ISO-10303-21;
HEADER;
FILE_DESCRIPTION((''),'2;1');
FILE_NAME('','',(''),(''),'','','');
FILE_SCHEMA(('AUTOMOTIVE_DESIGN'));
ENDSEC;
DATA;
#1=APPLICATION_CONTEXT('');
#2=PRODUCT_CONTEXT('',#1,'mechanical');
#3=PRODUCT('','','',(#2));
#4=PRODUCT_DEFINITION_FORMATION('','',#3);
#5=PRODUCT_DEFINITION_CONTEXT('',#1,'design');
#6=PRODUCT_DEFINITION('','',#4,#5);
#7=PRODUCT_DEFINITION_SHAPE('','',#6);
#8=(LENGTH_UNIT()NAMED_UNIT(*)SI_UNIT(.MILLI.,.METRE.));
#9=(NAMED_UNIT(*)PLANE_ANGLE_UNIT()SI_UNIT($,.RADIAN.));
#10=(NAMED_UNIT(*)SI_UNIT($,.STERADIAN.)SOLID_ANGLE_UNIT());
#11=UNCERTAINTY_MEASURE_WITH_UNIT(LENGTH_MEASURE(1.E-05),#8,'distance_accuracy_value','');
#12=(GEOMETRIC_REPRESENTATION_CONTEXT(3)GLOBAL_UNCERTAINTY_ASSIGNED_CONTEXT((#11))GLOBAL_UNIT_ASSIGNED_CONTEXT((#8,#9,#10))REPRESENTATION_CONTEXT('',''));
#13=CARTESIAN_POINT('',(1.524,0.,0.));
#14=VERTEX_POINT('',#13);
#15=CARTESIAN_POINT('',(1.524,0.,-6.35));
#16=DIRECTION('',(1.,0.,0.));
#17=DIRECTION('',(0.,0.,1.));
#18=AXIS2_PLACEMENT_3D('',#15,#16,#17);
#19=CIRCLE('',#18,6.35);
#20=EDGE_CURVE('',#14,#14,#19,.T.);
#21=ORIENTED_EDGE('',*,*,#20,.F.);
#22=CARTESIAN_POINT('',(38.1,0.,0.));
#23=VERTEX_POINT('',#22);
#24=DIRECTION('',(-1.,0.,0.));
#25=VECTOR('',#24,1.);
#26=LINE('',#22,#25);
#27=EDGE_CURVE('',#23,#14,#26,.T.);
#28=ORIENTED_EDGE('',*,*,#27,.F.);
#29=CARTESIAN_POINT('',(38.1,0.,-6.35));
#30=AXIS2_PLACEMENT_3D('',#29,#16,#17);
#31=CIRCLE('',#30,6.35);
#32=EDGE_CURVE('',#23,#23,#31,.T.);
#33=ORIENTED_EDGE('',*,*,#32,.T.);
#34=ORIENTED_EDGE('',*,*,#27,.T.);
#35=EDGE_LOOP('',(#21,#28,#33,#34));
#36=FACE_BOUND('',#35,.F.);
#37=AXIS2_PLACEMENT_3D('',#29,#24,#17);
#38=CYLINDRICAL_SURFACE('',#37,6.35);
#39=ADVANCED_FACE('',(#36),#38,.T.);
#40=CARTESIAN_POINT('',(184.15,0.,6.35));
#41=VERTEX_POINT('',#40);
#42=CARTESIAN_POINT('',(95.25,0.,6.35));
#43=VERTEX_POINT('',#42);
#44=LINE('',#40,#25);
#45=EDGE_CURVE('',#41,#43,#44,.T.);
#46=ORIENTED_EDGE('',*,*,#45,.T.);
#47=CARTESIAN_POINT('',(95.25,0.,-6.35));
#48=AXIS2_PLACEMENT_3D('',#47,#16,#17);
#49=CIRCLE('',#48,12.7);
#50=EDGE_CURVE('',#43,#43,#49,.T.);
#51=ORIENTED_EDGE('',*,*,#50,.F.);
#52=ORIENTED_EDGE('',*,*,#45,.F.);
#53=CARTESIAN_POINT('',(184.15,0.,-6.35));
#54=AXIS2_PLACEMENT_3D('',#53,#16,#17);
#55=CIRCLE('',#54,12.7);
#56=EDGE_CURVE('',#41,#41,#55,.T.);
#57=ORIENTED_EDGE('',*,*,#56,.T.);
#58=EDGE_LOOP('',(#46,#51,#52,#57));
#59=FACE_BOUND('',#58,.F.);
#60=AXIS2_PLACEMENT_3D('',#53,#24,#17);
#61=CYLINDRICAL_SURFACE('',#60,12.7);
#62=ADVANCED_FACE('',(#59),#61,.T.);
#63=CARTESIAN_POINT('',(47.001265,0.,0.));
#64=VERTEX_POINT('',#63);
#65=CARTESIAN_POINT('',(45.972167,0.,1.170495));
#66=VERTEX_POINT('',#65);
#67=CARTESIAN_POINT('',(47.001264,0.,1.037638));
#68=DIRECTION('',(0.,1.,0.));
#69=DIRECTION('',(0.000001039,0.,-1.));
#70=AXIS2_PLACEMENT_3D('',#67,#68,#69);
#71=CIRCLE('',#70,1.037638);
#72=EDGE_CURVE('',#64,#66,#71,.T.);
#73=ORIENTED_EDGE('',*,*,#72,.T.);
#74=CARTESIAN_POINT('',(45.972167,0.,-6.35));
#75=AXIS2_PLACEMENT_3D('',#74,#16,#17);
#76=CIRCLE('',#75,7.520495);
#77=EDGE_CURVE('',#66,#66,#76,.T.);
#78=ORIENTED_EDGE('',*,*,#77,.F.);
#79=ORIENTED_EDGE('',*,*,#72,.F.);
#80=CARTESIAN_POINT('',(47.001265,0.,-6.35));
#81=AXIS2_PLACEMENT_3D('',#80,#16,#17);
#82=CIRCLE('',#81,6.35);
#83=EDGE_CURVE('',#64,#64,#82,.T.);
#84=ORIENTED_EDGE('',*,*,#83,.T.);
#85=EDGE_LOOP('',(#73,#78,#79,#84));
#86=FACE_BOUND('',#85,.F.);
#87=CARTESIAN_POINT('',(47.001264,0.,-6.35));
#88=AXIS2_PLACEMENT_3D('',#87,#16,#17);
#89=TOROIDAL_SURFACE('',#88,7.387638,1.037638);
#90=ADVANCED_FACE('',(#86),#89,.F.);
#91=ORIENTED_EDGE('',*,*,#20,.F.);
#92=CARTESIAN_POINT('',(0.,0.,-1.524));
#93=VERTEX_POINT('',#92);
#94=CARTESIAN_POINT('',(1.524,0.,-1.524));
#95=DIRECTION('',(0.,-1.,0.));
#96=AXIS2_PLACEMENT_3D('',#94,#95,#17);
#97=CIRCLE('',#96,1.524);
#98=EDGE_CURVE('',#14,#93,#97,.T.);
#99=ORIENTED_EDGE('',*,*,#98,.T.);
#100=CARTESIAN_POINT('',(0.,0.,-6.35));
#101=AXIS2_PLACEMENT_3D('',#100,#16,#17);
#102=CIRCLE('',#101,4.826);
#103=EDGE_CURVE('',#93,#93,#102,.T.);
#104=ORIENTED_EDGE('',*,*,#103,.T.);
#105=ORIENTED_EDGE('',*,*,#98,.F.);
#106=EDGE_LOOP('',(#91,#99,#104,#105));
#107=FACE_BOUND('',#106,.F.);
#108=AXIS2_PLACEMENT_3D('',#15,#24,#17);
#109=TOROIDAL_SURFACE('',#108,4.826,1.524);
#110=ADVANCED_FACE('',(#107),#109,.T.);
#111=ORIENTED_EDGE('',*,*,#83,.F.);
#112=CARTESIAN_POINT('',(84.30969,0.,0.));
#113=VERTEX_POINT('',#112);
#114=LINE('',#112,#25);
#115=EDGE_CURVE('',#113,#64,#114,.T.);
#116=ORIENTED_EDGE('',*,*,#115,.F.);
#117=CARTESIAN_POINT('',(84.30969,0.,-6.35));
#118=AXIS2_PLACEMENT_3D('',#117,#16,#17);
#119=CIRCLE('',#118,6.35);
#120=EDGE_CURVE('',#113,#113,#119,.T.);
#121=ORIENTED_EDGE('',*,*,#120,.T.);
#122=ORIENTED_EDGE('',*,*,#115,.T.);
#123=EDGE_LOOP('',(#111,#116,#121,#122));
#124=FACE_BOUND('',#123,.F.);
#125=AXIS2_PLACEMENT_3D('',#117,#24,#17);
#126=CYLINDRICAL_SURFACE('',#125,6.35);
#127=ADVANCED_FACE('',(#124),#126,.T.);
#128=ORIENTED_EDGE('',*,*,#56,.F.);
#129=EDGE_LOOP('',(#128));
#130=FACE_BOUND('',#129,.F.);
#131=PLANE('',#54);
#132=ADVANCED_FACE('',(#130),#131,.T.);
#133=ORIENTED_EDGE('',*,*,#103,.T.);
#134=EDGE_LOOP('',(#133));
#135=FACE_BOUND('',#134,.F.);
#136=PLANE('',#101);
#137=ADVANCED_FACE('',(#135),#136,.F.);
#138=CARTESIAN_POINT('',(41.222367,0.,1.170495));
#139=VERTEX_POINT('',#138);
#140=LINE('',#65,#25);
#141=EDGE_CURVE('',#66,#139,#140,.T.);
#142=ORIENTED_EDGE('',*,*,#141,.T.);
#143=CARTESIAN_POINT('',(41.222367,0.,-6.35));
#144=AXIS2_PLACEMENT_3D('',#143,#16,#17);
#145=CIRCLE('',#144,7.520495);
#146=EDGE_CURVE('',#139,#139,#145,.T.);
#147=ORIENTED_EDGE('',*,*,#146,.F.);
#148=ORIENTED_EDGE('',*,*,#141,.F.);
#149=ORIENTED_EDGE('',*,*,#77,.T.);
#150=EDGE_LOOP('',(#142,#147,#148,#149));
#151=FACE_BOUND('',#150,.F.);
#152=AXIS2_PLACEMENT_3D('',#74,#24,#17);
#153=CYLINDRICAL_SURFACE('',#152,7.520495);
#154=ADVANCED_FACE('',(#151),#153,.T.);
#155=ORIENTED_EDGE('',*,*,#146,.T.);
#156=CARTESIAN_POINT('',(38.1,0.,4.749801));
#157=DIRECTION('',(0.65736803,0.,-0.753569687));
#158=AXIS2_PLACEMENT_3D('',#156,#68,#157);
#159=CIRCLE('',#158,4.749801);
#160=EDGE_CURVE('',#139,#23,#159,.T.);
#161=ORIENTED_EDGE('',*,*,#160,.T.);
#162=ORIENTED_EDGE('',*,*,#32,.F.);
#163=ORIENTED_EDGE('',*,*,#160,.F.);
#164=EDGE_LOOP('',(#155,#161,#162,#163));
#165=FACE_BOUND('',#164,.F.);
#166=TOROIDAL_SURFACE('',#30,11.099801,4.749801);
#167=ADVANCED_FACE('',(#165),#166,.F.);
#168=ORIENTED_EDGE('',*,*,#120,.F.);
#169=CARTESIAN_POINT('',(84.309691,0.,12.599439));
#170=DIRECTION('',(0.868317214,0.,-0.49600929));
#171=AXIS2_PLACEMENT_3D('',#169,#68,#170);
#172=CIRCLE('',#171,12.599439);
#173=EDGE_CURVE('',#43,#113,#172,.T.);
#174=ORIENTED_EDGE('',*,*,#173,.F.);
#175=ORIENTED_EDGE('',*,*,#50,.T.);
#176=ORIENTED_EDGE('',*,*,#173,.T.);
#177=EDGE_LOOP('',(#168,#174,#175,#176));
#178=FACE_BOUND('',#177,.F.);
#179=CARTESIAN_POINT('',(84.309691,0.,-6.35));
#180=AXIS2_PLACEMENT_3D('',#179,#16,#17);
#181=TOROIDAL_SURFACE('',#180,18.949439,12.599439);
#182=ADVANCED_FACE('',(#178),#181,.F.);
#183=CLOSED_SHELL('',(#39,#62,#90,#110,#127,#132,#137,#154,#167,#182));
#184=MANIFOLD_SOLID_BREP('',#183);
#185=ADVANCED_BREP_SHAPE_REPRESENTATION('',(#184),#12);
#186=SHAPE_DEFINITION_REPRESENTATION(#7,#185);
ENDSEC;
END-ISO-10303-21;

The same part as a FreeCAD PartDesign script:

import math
import FreeCAD as App
import Part
import Sketcher
from FreeCAD import Vector
Q = App.Units.Quantity


def edges_at(feature, points):
    """Names of the edges that pass closest to the given points."""
    edges = feature.Shape.Edges
    near = lambda p: min(range(len(edges)), key=lambda i: edges[i].distToShape(Part.Vertex(*p))[0])
    return sorted({f"Edge{near(p) + 1}" for p in points})

doc = App.newDocument("Part")
params = doc.addObject("Spreadsheet::Sheet", "Params")
for row, (alias, value) in enumerate([
    ("sketch1_width", "1.5 in"),
    ("sketch1_width2", "3.5 in"),
    ("sketch1_height", "0.5 in"),
    ("sketch1_radius", "0.187 in"),
    ("sketch1_width3", "7.25 in"),
    ("revolution_angle", "360 deg"),
    ("fillet_radius", "0.06 in"),
], start=1):
    params.set(f"A{row}", alias)
    params.set(f"B{row}", "=" + value)
    params.setAlias(f"B{row}", alias)

body = doc.addObject("PartDesign::Body", "Body")

sketch1 = body.newObject("Sketcher::SketchObject", "Sketch")
sketch1.AttachmentSupport = (doc.getObject("XZ_Plane"), [""])
sketch1.MapMode = "FlatFace"
sketch1.addGeometry([
    Part.LineSegment(Vector(38.1, 0, 0), Vector(0, 0, 0)),
    Part.LineSegment(Vector(0, 0, 0), Vector(0, -6.3, 0)),
    Part.LineSegment(Vector(0, -6.3, 0), Vector(184.2, -6.3, 0)),
    Part.LineSegment(Vector(184.2, -6.3, 0), Vector(184.2, 6.3, 0)),
    Part.LineSegment(Vector(184.2, 6.3, 0), Vector(95.2, 6.3, 0)),
    Part.ArcOfCircle(Part.Circle(Vector(84.3, 12.6, 0), Vector(0, 0, 1), 12.6), math.radians(-90), math.radians(-30)),
    Part.LineSegment(Vector(84.3, 0, 0), Vector(47, 0, 0)),
    Part.ArcOfCircle(Part.Circle(Vector(47, 1, 0), Vector(0, 0, 1), 1), math.radians(173), math.radians(270)),
    Part.LineSegment(Vector(46, 1.2, 0), Vector(41.2, 1.2, 0)),
    Part.ArcOfCircle(Part.Circle(Vector(38.1, 4.7, 0), Vector(0, 0, 1), 4.7), math.radians(-90), math.radians(-49)),
], False)
sketch1.addGeometry(Part.LineSegment(Vector(0, -6.3, 0), Vector(184.2, -6.3, 0)), True)
sketch1.addConstraint([
    Sketcher.Constraint("Coincident", 0, 2, 1, 1),
    Sketcher.Constraint("Coincident", 1, 2, 2, 1),
    Sketcher.Constraint("Coincident", 2, 2, 3, 1),
    Sketcher.Constraint("Coincident", 3, 2, 4, 1),
    Sketcher.Constraint("Coincident", 4, 2, 5, 2),
    Sketcher.Constraint("Tangent", 5, 1, 6, 1),
    Sketcher.Constraint("Tangent", 6, 2, 7, 2),
    Sketcher.Constraint("Coincident", 7, 1, 8, 1),
    Sketcher.Constraint("Coincident", 8, 2, 9, 2),
    Sketcher.Constraint("Tangent", 9, 1, 0, 1),
    Sketcher.Constraint("Horizontal", 0),
    Sketcher.Constraint("Vertical", 1),
    Sketcher.Constraint("Horizontal", 2),
    Sketcher.Constraint("Vertical", 3),
    Sketcher.Constraint("Horizontal", 4),
    Sketcher.Constraint("Horizontal", 6),
    Sketcher.Constraint("Horizontal", 8),
    Sketcher.Constraint("Horizontal", 10),
    Sketcher.Constraint("Coincident", 0, 2, -1, 1),
    Sketcher.Constraint("Coincident", 10, 1, 1, 2),
    Sketcher.Constraint("Symmetric", 3, 2, 10, 2, -1),
    Sketcher.Constraint("PointOnObject", 5, 1, -1),
    Sketcher.Constraint("DistanceX", 0, 2, 0, 1, Q("1.5 in")),
    Sketcher.Constraint("DistanceX", 4, 2, 4, 1, Q("3.5 in")),
    Sketcher.Constraint("DistanceY", 3, 1, 3, 2, Q("0.5 in")),
    Sketcher.Constraint("Radius", 9, Q("0.187 in")),
    Sketcher.Constraint("DistanceX", 2, 1, 2, 2, Q("7.25 in")),
    Sketcher.Constraint("DistanceX", 8, 2, 8, 1, Q("0.187 in")),
    Sketcher.Constraint("Radius", 5, 12.599439),
    Sketcher.Constraint("Radius", 7, 1.037638),
    Sketcher.Constraint("DistanceX", 6, 2, 6, 1, 37.308425),
])
sketch1.setExpression("Constraints[22]", "Params.sketch1_width")
sketch1.setExpression("Constraints[23]", "Params.sketch1_width2")
sketch1.setExpression("Constraints[24]", "Params.sketch1_height")
sketch1.setExpression("Constraints[25]", "Params.sketch1_radius")
sketch1.setExpression("Constraints[26]", "Params.sketch1_width3")
revolution = body.newObject("PartDesign::Revolution", "Revolution")
revolution.Profile = sketch1
revolution.ReferenceAxis = (sketch1, ["Axis0"])
revolution.setExpression("Angle", "Params.revolution_angle")
doc.recompute()

fillet = body.newObject("PartDesign::Fillet", "Fillet")
fillet.Base = (revolution, edges_at(revolution, [(0, 0, -12.7)]))
fillet.setExpression("Radius", "Params.fillet_radius")

doc.recompute()
